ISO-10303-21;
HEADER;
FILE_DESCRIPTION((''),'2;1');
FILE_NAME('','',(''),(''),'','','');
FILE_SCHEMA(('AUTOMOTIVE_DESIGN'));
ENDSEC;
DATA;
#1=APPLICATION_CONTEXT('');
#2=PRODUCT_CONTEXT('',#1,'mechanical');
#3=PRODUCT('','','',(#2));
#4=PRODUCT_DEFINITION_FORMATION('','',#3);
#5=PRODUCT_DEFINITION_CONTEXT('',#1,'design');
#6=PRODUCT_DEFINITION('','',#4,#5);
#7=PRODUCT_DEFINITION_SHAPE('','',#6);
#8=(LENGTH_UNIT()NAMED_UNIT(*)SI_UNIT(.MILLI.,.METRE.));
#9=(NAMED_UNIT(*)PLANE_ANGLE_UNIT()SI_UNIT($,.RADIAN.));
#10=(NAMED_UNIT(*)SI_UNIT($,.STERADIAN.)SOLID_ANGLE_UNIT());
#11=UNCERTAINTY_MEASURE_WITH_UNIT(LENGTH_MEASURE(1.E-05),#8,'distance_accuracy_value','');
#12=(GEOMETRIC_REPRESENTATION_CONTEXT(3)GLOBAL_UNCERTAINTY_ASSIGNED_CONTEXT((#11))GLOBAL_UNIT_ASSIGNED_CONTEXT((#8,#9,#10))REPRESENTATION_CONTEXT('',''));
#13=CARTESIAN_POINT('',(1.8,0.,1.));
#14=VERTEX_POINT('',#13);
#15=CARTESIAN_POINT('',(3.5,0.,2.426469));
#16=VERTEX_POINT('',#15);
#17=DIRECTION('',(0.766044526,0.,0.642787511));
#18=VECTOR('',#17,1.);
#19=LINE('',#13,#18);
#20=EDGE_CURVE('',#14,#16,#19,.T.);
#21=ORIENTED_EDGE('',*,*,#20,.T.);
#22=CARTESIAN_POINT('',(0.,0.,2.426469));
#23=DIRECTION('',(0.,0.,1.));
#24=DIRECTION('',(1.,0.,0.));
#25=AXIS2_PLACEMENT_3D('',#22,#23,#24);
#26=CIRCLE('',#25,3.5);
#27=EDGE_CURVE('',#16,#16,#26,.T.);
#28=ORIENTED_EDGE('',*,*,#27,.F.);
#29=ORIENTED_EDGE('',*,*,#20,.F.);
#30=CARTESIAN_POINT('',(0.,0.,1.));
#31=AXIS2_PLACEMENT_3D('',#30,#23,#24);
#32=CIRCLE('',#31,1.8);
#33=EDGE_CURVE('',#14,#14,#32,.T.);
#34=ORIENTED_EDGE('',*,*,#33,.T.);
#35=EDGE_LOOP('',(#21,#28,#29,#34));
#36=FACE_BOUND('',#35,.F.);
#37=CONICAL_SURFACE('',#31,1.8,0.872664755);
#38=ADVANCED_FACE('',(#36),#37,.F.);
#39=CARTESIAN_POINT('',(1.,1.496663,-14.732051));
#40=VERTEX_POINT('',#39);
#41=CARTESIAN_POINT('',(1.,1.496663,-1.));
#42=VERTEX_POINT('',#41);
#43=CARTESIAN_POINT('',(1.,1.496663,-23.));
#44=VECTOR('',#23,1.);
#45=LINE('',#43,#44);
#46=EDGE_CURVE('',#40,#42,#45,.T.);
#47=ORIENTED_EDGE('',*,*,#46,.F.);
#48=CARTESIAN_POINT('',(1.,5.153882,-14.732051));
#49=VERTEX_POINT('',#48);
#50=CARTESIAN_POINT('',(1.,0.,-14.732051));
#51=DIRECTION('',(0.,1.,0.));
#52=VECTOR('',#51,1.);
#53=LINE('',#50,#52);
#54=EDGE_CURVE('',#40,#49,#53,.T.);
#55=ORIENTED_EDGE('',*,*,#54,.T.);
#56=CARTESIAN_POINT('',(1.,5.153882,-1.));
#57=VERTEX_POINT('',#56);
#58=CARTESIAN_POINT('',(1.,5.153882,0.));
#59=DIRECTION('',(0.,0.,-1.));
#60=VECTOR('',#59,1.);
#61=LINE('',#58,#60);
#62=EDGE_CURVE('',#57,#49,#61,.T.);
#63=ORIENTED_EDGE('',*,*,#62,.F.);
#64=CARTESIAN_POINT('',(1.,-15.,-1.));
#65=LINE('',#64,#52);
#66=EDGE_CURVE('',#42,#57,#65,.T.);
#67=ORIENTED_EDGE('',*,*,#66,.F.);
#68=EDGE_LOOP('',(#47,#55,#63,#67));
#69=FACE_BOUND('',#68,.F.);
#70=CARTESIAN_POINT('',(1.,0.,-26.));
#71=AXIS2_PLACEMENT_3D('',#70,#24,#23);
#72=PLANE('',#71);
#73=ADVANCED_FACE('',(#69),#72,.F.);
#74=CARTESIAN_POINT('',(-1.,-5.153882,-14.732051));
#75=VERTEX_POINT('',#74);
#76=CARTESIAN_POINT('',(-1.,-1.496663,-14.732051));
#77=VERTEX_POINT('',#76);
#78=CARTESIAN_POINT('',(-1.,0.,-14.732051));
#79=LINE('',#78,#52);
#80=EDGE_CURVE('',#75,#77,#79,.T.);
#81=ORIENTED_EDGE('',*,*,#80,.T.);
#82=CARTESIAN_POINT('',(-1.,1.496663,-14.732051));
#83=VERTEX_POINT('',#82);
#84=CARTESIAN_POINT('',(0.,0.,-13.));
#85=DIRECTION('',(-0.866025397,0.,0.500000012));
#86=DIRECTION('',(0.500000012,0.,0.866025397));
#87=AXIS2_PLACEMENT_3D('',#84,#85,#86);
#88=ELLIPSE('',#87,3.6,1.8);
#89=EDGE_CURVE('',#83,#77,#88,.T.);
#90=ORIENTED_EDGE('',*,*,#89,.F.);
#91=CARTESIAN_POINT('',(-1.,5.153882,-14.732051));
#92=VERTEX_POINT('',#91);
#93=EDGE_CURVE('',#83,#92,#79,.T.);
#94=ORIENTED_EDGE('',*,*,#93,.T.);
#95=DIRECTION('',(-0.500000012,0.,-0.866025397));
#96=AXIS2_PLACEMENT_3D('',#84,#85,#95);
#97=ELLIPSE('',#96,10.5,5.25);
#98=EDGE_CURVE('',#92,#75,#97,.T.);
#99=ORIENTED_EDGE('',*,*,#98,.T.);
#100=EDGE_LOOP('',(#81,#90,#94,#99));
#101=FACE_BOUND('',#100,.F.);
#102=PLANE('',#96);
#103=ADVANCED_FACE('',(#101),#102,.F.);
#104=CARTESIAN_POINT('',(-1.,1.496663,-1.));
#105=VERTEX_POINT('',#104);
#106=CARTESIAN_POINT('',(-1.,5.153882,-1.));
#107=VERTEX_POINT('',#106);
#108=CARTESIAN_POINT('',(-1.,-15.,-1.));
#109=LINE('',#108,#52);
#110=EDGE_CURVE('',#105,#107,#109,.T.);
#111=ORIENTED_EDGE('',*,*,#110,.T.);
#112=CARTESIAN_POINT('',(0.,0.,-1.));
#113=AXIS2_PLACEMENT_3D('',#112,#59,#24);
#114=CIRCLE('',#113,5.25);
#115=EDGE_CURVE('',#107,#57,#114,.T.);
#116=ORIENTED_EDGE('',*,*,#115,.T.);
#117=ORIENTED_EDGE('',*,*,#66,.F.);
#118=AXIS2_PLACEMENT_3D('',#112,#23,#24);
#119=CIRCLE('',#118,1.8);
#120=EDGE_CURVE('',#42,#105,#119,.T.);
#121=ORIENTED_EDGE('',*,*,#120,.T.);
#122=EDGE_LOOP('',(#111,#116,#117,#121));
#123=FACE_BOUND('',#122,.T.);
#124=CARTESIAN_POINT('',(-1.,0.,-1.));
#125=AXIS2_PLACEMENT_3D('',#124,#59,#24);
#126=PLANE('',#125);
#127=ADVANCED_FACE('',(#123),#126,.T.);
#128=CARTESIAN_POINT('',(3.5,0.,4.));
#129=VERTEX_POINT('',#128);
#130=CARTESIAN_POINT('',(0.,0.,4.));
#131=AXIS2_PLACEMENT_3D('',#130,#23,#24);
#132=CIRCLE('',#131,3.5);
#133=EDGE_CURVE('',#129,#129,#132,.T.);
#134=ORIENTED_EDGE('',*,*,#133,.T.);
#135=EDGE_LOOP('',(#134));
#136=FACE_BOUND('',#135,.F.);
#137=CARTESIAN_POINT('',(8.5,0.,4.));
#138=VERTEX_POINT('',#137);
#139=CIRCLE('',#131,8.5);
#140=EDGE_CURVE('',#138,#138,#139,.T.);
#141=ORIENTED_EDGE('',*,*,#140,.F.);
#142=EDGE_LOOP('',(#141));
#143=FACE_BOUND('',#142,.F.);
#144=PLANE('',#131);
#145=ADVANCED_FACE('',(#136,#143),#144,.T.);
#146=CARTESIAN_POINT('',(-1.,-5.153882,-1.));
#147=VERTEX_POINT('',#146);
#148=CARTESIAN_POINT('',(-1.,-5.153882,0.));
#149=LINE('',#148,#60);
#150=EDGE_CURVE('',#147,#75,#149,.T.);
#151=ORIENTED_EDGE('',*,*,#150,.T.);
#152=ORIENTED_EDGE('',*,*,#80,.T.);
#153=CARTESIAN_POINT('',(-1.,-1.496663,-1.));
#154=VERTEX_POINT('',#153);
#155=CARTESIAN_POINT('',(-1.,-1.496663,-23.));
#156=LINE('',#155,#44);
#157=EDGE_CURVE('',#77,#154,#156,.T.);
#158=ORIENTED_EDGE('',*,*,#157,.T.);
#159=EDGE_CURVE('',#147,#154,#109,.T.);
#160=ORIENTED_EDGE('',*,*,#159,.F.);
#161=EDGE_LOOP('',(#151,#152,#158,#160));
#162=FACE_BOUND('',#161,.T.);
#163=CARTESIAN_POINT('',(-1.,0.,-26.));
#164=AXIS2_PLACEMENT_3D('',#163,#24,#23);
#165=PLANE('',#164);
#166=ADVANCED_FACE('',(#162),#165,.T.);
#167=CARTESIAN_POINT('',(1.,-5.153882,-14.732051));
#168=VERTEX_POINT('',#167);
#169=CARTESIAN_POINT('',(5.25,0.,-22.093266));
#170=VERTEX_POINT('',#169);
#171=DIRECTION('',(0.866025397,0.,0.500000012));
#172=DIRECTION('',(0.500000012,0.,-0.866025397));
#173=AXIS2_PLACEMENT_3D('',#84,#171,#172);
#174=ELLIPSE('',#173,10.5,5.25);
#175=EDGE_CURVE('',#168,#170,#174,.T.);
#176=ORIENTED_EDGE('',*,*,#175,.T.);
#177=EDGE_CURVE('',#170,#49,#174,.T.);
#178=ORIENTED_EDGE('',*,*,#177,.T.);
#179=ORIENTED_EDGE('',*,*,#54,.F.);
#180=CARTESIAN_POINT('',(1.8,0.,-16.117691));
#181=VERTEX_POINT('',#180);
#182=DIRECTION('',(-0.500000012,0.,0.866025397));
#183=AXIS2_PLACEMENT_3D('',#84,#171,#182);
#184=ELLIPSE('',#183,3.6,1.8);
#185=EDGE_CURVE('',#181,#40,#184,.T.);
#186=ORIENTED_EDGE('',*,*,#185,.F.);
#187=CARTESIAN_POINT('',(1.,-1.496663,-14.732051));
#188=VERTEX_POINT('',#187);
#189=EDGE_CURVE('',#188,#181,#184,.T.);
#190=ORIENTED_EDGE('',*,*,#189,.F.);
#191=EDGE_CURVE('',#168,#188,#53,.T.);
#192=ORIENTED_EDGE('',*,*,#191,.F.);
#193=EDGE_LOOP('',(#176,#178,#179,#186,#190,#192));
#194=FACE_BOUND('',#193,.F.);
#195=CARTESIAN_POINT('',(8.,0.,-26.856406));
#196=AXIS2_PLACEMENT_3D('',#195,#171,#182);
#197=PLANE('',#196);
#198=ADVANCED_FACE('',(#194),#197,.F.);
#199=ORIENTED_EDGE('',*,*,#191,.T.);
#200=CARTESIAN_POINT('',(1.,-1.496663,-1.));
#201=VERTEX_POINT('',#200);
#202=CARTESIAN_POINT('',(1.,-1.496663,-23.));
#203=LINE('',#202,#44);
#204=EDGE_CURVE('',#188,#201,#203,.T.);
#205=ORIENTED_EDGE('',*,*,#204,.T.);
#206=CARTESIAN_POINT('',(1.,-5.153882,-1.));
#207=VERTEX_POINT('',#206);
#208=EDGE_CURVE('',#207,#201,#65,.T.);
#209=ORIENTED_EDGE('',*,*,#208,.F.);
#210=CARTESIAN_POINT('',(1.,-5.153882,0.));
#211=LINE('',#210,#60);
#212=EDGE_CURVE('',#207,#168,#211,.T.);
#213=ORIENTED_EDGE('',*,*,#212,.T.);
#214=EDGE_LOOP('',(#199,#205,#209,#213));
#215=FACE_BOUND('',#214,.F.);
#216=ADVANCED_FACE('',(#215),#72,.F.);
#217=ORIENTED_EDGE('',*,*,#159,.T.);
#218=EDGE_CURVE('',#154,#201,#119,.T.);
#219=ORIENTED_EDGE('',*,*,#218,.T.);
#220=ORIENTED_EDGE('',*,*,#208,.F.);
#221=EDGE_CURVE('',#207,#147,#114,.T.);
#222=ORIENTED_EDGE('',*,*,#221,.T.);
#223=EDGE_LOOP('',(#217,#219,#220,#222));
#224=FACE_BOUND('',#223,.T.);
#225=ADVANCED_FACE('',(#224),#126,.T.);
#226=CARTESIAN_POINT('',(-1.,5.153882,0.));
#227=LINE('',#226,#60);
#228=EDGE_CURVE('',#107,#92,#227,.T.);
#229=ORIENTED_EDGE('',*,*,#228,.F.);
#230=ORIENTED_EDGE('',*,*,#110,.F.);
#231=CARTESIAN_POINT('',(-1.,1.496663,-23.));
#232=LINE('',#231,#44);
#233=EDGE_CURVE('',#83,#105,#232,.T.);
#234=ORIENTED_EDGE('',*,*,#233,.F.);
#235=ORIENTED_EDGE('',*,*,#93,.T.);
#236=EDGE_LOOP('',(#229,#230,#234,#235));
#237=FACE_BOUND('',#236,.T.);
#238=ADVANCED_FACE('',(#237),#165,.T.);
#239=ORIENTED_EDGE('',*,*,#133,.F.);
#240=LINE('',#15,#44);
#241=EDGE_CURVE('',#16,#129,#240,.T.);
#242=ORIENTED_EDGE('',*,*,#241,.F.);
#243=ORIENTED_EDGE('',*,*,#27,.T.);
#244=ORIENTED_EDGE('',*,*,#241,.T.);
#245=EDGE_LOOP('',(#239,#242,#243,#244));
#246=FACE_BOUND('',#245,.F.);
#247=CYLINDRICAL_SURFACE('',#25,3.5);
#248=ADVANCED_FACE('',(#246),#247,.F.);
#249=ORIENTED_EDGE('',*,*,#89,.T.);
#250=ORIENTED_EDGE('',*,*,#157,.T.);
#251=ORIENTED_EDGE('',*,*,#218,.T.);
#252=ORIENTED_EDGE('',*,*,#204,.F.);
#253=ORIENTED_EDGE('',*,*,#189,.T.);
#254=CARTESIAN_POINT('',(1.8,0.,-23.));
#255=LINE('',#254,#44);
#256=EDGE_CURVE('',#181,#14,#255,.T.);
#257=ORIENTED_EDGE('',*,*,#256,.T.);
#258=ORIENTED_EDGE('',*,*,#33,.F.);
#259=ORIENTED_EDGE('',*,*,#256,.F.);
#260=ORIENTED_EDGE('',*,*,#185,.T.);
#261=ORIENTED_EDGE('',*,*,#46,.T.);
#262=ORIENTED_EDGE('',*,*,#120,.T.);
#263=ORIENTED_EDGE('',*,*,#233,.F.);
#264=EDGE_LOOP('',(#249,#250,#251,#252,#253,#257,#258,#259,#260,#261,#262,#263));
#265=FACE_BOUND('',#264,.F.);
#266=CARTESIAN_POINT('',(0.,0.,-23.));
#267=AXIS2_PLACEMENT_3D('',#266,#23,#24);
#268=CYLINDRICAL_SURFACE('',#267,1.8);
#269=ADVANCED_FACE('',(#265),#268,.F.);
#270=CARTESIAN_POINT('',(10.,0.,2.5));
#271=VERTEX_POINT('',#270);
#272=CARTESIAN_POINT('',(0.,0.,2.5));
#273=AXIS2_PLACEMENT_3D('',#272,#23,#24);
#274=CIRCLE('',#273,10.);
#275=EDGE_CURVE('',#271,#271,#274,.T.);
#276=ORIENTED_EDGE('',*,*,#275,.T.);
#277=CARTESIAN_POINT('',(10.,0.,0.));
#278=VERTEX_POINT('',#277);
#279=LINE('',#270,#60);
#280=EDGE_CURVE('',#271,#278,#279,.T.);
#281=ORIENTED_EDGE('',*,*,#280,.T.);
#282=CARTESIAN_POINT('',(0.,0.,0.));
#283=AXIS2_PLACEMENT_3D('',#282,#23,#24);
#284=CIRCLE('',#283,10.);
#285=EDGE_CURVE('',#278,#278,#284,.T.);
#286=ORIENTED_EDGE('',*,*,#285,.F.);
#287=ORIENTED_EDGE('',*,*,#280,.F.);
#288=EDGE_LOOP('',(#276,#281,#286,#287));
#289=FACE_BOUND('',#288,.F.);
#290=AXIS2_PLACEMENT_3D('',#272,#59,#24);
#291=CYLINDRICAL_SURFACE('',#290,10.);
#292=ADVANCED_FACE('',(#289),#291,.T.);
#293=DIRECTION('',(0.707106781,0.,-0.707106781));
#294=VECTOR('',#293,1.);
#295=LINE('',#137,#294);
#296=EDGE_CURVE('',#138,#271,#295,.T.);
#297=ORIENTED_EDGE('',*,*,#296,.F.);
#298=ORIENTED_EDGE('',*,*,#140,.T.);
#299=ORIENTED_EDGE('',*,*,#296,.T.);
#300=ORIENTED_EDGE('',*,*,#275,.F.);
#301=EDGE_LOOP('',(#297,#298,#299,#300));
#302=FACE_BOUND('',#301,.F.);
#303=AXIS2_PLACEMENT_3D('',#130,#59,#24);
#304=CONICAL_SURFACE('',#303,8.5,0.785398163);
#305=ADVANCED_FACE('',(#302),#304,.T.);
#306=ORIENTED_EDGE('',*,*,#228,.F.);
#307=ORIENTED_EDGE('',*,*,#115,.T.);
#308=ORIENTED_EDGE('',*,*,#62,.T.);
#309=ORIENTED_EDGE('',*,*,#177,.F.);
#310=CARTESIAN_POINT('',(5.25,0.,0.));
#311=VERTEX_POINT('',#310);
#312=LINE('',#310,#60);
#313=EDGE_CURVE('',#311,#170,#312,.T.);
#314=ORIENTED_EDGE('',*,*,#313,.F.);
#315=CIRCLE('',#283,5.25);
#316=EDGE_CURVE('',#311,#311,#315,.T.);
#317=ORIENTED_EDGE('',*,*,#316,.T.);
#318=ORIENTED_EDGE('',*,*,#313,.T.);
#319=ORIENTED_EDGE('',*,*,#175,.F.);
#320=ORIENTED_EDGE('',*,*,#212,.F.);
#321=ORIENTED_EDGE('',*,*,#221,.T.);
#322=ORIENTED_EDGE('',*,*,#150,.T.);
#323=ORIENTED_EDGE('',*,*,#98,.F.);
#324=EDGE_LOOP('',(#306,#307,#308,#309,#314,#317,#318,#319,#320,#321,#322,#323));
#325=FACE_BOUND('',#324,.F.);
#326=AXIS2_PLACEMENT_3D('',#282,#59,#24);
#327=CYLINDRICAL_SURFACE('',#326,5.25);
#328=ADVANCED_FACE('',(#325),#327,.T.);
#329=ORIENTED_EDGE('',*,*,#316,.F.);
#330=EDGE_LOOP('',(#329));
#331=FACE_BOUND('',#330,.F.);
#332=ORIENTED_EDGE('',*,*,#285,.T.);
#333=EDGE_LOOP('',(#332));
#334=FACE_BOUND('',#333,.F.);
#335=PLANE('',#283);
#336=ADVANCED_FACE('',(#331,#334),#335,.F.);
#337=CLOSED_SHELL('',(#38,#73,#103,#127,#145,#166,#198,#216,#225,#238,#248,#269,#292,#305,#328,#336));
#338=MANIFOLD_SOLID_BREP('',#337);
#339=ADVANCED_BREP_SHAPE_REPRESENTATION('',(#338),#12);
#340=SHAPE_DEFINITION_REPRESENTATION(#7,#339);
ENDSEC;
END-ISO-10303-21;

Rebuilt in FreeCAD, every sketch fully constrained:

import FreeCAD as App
import Part
import Sketcher

V = App.Vector
Q = App.Units.Quantity


def add_polygon(sketch, points):
    """Adds a closed chain of lines whose ends are joined by coincident constraints."""
    first, n = sketch.GeometryCount, len(points)
    for a, b in zip(points, points[1:] + points[:1]):
        sketch.addGeometry(Part.LineSegment(App.Vector(*a, 0), App.Vector(*b, 0)), False)
    for i in range(n):
        sketch.addConstraint(Sketcher.Constraint("Coincident", first + i, 2, first + (i + 1) % n, 1))

doc = App.newDocument("Part")
body = doc.addObject("PartDesign::Body", "Body")

# Sketch on XZ plane
sketch1 = doc.addObject("Sketcher::SketchObject", "Sketch")
body.addObject(sketch1)
sketch1.AttachmentSupport = (doc.XZ_Plane, [""])
sketch1.MapMode = "FlatFace"
add_polygon(sketch1, [(-1, -1), (-1, -26), (1, -26), (1, -1)])  # lines 0-3
sketch1.addConstraint([
    Sketcher.Constraint("Vertical", 0),
    Sketcher.Constraint("Horizontal", 1),
    Sketcher.Constraint("Vertical", 2),
    Sketcher.Constraint("Horizontal", 3),
    Sketcher.Constraint("DistanceX", 1, 1, 1, 2, Q("2 mm")),
    Sketcher.Constraint("DistanceY", 0, 2, 0, 1, Q("25 mm")),
    Sketcher.Constraint("DistanceX", 0, 2, -1, 1, Q("1 mm")),
    Sketcher.Constraint("DistanceY", 0, 2, -1, 1, Q("26 mm")),
])
pad1 = doc.addObject("PartDesign::Pad", "Pad")
body.addObject(pad1)
pad1.Profile = sketch1
pad1.Length = 30
pad1.Midplane = True
body2 = doc.addObject("PartDesign::Body", "Body001")

# Sketch on XZ plane
sketch2 = doc.addObject("Sketcher::SketchObject", "Sketch001")
body2.addObject(sketch2)
sketch2.AttachmentSupport = (doc.getObject("XZ_Plane001"), [""])
sketch2.MapMode = "FlatFace"
add_polygon(sketch2, [(8, -27), (0, -13), (-8, -27)])  # lines 0-2
sketch2.addConstraint([
    Sketcher.Constraint("Horizontal", 2),
    Sketcher.Constraint("PointOnObject", 0, 2, -2),
    Sketcher.Constraint("Equal", 0, 1),
    Sketcher.Constraint("DistanceX", 2, 1, 2, 2, Q("16 mm")),
    Sketcher.Constraint("Angle", 0, Q("120.000001 deg")),
    Sketcher.Constraint("DistanceY", 0, 2, -1, 1, Q("13 mm")),
])
pad2 = doc.addObject("PartDesign::Pad", "Pad001")
body2.addObject(pad2)
pad2.Profile = sketch2
pad2.Length = 15
pad2.Midplane = True
body3 = doc.addObject("PartDesign::Body", "Body002")

# Sketch on XZ plane
sketch3 = doc.addObject("Sketcher::SketchObject", "Sketch002")
body3.addObject(sketch3)
sketch3.AttachmentSupport = (doc.getObject("XZ_Plane002"), [""])
sketch3.MapMode = "FlatFace"
add_polygon(sketch3, [(8.5, 4), (3.5, 4), (3.5, 2.4), (1.8, 1), (1.8, -23), (5.2, -23), (5.2, 0), (10, 0), (10, 2.5)])  # lines 0-8
sketch3.addConstraint([
    Sketcher.Constraint("Horizontal", 0),
    Sketcher.Constraint("Vertical", 1),
    Sketcher.Constraint("Vertical", 3),
    Sketcher.Constraint("Horizontal", 4),
    Sketcher.Constraint("Vertical", 5),
    Sketcher.Constraint("Horizontal", 6),
    Sketcher.Constraint("Vertical", 7),
    Sketcher.Constraint("PointOnObject", 5, 2, -1),
    Sketcher.Constraint("DistanceX", 0, 2, 0, 1, Q("5 mm")),
    Sketcher.Constraint("DistanceY", 3, 2, 3, 1, Q("24 mm")),
    Sketcher.Constraint("DistanceY", 5, 1, 5, 2, Q("23 mm")),
    Sketcher.Constraint("Angle", 2, Q("-140.000007 deg")),
    Sketcher.Constraint("Angle", 8, Q("135 deg")),
    Sketcher.Constraint("DistanceY", 7, 1, 7, 2, Q("2.5 mm")),
    Sketcher.Constraint("DistanceY", -1, 1, 0, 2, Q("4 mm")),
    Sketcher.Constraint("DistanceX", -1, 1, 6, 2, Q("10 mm")),
    Sketcher.Constraint("DistanceX", 4, 1, 4, 2, Q("3.45 mm")),
    Sketcher.Constraint("DistanceX", 6, 1, 6, 2, Q("4.75 mm")),
])
revolution = doc.addObject("PartDesign::Revolution", "Revolution")
body3.addObject(revolution)
revolution.Profile = sketch3
revolution.ReferenceAxis = (sketch3, ["V_Axis"])
revolution.Angle = 360
doc.recompute()

boolean = doc.addObject("PartDesign::Boolean", "Boolean")
body3.addObject(boolean)
boolean.Type = "Cut"
boolean.addObjects([body2])
doc.recompute()

boolean2 = doc.addObject("PartDesign::Boolean", "Boolean001")
body3.addObject(boolean2)
boolean2.Type = "Cut"
boolean2.addObjects([body])

doc.recompute()
